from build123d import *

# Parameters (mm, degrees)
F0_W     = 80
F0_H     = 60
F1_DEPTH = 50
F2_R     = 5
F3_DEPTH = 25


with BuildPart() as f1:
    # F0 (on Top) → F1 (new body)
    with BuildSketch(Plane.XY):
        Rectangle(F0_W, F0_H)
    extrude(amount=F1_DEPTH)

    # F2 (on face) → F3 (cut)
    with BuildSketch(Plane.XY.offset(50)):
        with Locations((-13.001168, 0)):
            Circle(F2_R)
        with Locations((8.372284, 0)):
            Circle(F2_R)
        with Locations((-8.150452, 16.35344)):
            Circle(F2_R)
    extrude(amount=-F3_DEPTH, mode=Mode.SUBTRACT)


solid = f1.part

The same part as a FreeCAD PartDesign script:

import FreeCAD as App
import Part
import Sketcher
from FreeCAD import Vector
Q = App.Units.Quantity

doc = App.newDocument("Part")
body = doc.addObject("PartDesign::Body", "Body")

# Sketch on XY plane
sketch1 = body.newObject("Sketcher::SketchObject", "Sketch")
sketch1.AttachmentSupport = (doc.getObject("XY_Plane"), [""])
sketch1.MapMode = "FlatFace"
sketch1.addGeometry([
    Part.LineSegment(Vector(-40, 30, 0), Vector(-40, -30, 0)),
    Part.LineSegment(Vector(-40, -30, 0), Vector(40, -30, 0)),
    Part.LineSegment(Vector(40, -30, 0), Vector(40, 30, 0)),
    Part.LineSegment(Vector(40, 30, 0), Vector(-40, 30, 0)),
], False)
sketch1.addConstraint([
    Sketcher.Constraint("Coincident", 0, 2, 1, 1),
    Sketcher.Constraint("Coincident", 1, 2, 2, 1),
    Sketcher.Constraint("Coincident", 2, 2, 3, 1),
    Sketcher.Constraint("Coincident", 3, 2, 0, 1),
    Sketcher.Constraint("Vertical", 0),
    Sketcher.Constraint("Horizontal", 1),
    Sketcher.Constraint("Vertical", 2),
    Sketcher.Constraint("Horizontal", 3),
    Sketcher.Constraint("Symmetric", 0, 2, 2, 2, -1, 1),
    Sketcher.Constraint("DistanceX", 1, 1, 1, 2, Q("80 mm")),
    Sketcher.Constraint("DistanceY", 0, 2, 0, 1, Q("60 mm")),
])
pad1 = body.newObject("PartDesign::Pad", "Pad")
pad1.Profile = sketch1
pad1.Length = 50

# Sketch on XY plane
sketch2 = body.newObject("Sketcher::SketchObject", "Sketch001")
sketch2.AttachmentSupport = (doc.getObject("XY_Plane"), [""])
sketch2.MapMode = "FlatFace"
sketch2.AttachmentOffset = App.Placement(Vector(0, 0, 50), App.Rotation())
sketch2.addGeometry([
    Part.Circle(Vector(-13, 0, 0), Vector(0, 0, 1), 5),
    Part.Circle(Vector(8, 0, 0), Vector(0, 0, 1), 5),
    Part.Circle(Vector(-8, 16, 0), Vector(0, 0, 1), 5),
], False)
sketch2.addConstraint([
    Sketcher.Constraint("Equal", 0, 1),
    Sketcher.Constraint("Equal", 1, 2),
    Sketcher.Constraint("PointOnObject", 0, 3, -1),
    Sketcher.Constraint("PointOnObject", 1, 3, -1),
    Sketcher.Constraint("Diameter", 0, Q("10 mm")),
    Sketcher.Constraint("DistanceY", -1, 1, 2, 3, Q("16.35344 mm")),
    Sketcher.Constraint("DistanceX", 0, 3, -1, 1, Q("13.001168 mm")),
    Sketcher.Constraint("DistanceX", -1, 1, 1, 3, Q("8.372284 mm")),
    Sketcher.Constraint("DistanceX", 2, 3, -1, 1, Q("8.150452 mm")),
])
pocket1 = body.newObject("PartDesign::Pocket", "Pocket")
pocket1.Profile = sketch2
pocket1.Length = 25

doc.recompute()
